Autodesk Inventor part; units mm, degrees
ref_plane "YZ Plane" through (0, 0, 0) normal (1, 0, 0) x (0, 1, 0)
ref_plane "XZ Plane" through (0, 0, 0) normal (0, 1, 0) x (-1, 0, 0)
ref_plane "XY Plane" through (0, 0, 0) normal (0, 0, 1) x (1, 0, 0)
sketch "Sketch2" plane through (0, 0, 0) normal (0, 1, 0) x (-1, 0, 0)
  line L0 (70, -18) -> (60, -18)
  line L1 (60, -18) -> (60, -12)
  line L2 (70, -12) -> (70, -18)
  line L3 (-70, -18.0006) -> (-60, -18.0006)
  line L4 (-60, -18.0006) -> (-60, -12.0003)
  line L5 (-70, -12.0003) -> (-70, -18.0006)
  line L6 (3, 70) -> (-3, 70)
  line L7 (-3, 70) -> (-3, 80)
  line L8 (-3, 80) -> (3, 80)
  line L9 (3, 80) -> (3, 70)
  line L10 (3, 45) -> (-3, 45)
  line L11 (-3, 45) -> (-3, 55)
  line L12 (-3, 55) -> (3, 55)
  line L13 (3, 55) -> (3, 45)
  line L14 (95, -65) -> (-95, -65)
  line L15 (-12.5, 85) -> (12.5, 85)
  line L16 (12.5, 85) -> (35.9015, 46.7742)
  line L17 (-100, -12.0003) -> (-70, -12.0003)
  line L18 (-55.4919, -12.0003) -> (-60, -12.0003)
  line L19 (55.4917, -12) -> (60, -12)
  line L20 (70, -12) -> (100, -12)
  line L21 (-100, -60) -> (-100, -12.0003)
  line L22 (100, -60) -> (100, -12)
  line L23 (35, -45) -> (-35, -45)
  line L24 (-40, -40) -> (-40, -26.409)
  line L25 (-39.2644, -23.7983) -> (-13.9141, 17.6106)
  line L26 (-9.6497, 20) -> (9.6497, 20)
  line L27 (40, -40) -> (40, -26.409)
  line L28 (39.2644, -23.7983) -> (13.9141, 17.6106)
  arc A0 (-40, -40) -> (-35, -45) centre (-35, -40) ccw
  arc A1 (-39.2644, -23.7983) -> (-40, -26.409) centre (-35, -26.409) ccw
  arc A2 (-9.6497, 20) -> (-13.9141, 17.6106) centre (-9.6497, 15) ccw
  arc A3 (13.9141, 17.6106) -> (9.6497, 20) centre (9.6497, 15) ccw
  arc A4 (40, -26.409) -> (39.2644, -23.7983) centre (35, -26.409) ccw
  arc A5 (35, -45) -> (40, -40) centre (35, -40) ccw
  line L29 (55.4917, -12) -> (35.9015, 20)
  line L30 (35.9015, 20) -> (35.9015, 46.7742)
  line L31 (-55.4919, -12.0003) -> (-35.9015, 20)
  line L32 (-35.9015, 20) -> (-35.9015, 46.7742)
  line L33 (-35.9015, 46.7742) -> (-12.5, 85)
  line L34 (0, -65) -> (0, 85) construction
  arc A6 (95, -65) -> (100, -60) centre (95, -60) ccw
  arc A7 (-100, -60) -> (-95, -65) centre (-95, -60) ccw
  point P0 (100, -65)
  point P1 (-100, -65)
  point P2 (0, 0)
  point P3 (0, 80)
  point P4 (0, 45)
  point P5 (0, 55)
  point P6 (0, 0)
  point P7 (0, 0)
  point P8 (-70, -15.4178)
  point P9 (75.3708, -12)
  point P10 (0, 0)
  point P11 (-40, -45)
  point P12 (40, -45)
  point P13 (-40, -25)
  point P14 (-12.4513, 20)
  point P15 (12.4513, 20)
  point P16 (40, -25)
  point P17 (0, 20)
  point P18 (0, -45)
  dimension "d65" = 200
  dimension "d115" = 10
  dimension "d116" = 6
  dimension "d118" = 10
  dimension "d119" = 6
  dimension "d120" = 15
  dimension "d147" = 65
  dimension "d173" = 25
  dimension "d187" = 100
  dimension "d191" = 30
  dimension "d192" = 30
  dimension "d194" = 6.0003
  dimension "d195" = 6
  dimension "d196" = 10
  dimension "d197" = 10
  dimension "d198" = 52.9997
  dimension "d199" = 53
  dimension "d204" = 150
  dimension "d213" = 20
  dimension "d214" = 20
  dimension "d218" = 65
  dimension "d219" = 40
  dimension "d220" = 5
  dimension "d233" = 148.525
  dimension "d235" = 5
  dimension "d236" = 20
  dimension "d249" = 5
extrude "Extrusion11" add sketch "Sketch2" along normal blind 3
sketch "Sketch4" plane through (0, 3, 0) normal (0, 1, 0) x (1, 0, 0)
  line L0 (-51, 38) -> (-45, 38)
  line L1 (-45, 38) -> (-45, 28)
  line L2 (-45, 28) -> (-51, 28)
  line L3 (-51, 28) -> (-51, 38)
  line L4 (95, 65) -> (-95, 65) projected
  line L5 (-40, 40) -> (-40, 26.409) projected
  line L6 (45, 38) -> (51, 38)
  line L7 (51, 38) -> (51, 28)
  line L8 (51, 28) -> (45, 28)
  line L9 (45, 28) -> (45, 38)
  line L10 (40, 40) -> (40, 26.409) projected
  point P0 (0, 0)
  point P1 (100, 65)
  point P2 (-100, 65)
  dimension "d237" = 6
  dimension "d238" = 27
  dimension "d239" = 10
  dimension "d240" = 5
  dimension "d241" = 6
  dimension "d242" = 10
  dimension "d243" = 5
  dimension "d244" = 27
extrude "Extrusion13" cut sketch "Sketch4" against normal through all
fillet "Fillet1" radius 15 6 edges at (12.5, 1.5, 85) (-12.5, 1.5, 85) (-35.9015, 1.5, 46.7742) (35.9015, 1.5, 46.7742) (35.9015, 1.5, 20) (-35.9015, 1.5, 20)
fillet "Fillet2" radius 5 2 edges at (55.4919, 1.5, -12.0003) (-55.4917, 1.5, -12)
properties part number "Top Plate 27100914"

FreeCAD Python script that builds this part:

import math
import FreeCAD as App
import Part
import Sketcher

V = App.Vector


def edges_at(feature, points):
    """Names of the edges that pass closest to the given points."""
    edges = feature.Shape.Edges
    near = lambda p: min(range(len(edges)), key=lambda i: edges[i].distToShape(Part.Vertex(*p))[0])
    return sorted({f"Edge{near(p) + 1}" for p in points})


def add_polygon(sketch, points):
    """Adds a closed chain of lines whose ends are joined by coincident constraints."""
    first, n = sketch.GeometryCount, len(points)
    for a, b in zip(points, points[1:] + points[:1]):
        sketch.addGeometry(Part.LineSegment(App.Vector(*a, 0), App.Vector(*b, 0)), False)
    for i in range(n):
        sketch.addConstraint(Sketcher.Constraint("Coincident", first + i, 2, first + (i + 1) % n, 1))

doc = App.newDocument("Part")
body = doc.addObject("PartDesign::Body", "Body")

# Sketch on XZ plane
sketch1 = body.newObject("Sketcher::SketchObject", "Sketch")
sketch1.AttachmentSupport = (doc.getObject("XZ_Plane"), [""])
sketch1.MapMode = "FlatFace"
sketch1.addGeometry(Part.LineSegment(V(-70, -12, 0), V(-70, -18, 0)), False)  # 0
sketch1.addGeometry(Part.LineSegment(V(-70, -18, 0), V(-60, -18, 0)), False)  # 1
sketch1.addGeometry(Part.LineSegment(V(-60, -18, 0), V(-60, -12, 0)), False)  # 2
sketch1.addGeometry(Part.LineSegment(V(-60, -12, 0), V(-55.4917, -12, 0)), False)  # 3
sketch1.addGeometry(Part.LineSegment(V(-55.4917, -12, 0), V(-35.9015, 20, 0)), False)  # 4
sketch1.addGeometry(Part.LineSegment(V(-35.9015, 20, 0), V(-35.9015, 46.7742, 0)), False)  # 5
sketch1.addGeometry(Part.LineSegment(V(-35.9015, 46.7742, 0), V(-12.5, 85, 0)), False)  # 6
sketch1.addGeometry(Part.LineSegment(V(-12.5, 85, 0), V(12.5, 85, 0)), False)  # 7
sketch1.addGeometry(Part.LineSegment(V(12.5, 85, 0), V(35.9015, 46.7742, 0)), False)  # 8
sketch1.addGeometry(Part.LineSegment(V(35.9015, 46.7742, 0), V(35.9015, 20, 0)), False)  # 9
sketch1.addGeometry(Part.LineSegment(V(35.9015, 20, 0), V(55.4919, -12.0003, 0)), False)  # 10
sketch1.addGeometry(Part.LineSegment(V(55.4919, -12.0003, 0), V(60, -12.0003, 0)), False)  # 11
sketch1.addGeometry(Part.LineSegment(V(60, -12.0003, 0), V(60, -18.0006, 0)), False)  # 12
sketch1.addGeometry(Part.LineSegment(V(60, -18.0006, 0), V(70, -18.0006, 0)), False)  # 13
sketch1.addGeometry(Part.LineSegment(V(70, -18.0006, 0), V(70, -12.0003, 0)), False)  # 14
sketch1.addGeometry(Part.LineSegment(V(70, -12.0003, 0), V(100, -12.0003, 0)), False)  # 15
sketch1.addGeometry(Part.LineSegment(V(100, -12.0003, 0), V(100, -60, 0)), False)  # 16
sketch1.addGeometry(Part.ArcOfCircle(Part.Circle(V(95, -60, 0), V(0, 0, 1), 5), math.radians(-90), math.radians(0)), False)  # 17
sketch1.addGeometry(Part.LineSegment(V(95, -65, 0), V(-95, -65, 0)), False)  # 18
sketch1.addGeometry(Part.ArcOfCircle(Part.Circle(V(-95, -60, 0), V(0, 0, 1), 5), math.radians(180), math.radians(270)), False)  # 19
sketch1.addGeometry(Part.LineSegment(V(-100, -60, 0), V(-100, -12, 0)), False)  # 20
sketch1.addGeometry(Part.LineSegment(V(-100, -12, 0), V(-70, -12, 0)), False)  # 21
sketch1.addGeometry(Part.ArcOfCircle(Part.Circle(V(-35, -40, 0), V(0, 0, 1), 5), math.radians(180), math.radians(270)), False)  # 22
sketch1.addGeometry(Part.LineSegment(V(-35, -45, 0), V(35, -45, 0)), False)  # 23
sketch1.addGeometry(Part.ArcOfCircle(Part.Circle(V(35, -40, 0), V(0, 0, 1), 5), math.radians(-90), math.radians(0)), False)  # 24
sketch1.addGeometry(Part.LineSegment(V(40, -40, 0), V(40, -26.409, 0)), False)  # 25
sketch1.addGeometry(Part.ArcOfCircle(Part.Circle(V(35.001063, -26.408535, 0), V(0, 0, 1), 4.998937), math.radians(-0.005325), math.radians(31.477124)), False)  # 26
sketch1.addGeometry(Part.LineSegment(V(39.2644, -23.7983, 0), V(13.9141, 17.6106, 0)), False)  # 27
sketch1.addGeometry(Part.ArcOfCircle(Part.Circle(V(9.6497, 15, 0), V(0, 0, 1), 5), math.radians(31.474326), math.radians(90)), False)  # 28
sketch1.addGeometry(Part.LineSegment(V(9.6497, 20, 0), V(-9.6497, 20, 0)), False)  # 29
sketch1.addGeometry(Part.ArcOfCircle(Part.Circle(V(-9.6497, 15, 0), V(0, 0, 1), 5.000034), math.radians(90), math.radians(148.525674)), False)  # 30
sketch1.addGeometry(Part.LineSegment(V(-13.9141, 17.6106, 0), V(-39.2644, -23.7983, 0)), False)  # 31
sketch1.addGeometry(Part.ArcOfCircle(Part.Circle(V(-34.99885, -26.409159, 0), V(0, 0, 1), 5.00115), math.radians(148.530022), math.radians(179.998179)), False)  # 32
sketch1.addGeometry(Part.LineSegment(V(-40, -26.409, 0), V(-40, -40, 0)), False)  # 33
add_polygon(sketch1, [(-3, 55), (-3, 45), (3, 45), (3, 55)])  # lines 34-37
add_polygon(sketch1, [(-3, 80), (-3, 70), (3, 70), (3, 80)])  # lines 38-41
sketch1.addConstraint(Sketcher.Constraint("Coincident", 0, 2, 1, 1))
sketch1.addConstraint(Sketcher.Constraint("Coincident", 1, 2, 2, 1))
sketch1.addConstraint(Sketcher.Constraint("Coincident", 2, 2, 3, 1))
sketch1.addConstraint(Sketcher.Constraint("Coincident", 3, 2, 4, 1))
sketch1.addConstraint(Sketcher.Constraint("Coincident", 4, 2, 5, 1))
sketch1.addConstraint(Sketcher.Constraint("Coincident", 5, 2, 6, 1))
sketch1.addConstraint(Sketcher.Constraint("Coincident", 6, 2, 7, 1))
sketch1.addConstraint(Sketcher.Constraint("Coincident", 7, 2, 8, 1))
sketch1.addConstraint(Sketcher.Constraint("Coincident", 8, 2, 9, 1))
sketch1.addConstraint(Sketcher.Constraint("Coincident", 9, 2, 10, 1))
sketch1.addConstraint(Sketcher.Constraint("Coincident", 10, 2, 11, 1))
sketch1.addConstraint(Sketcher.Constraint("Coincident", 11, 2, 12, 1))
sketch1.addConstraint(Sketcher.Constraint("Coincident", 12, 2, 13, 1))
sketch1.addConstraint(Sketcher.Constraint("Coincident", 13, 2, 14, 1))
sketch1.addConstraint(Sketcher.Constraint("Coincident", 14, 2, 15, 1))
sketch1.addConstraint(Sketcher.Constraint("Coincident", 15, 2, 16, 1))
sketch1.addConstraint(Sketcher.Constraint("Coincident", 16, 2, 17, 2))
sketch1.addConstraint(Sketcher.Constraint("Coincident", 17, 1, 18, 1))
sketch1.addConstraint(Sketcher.Constraint("Coincident", 18, 2, 19, 2))
sketch1.addConstraint(Sketcher.Constraint("Coincident", 19, 1, 20, 1))
sketch1.addConstraint(Sketcher.Constraint("Coincident", 20, 2, 21, 1))
sketch1.addConstraint(Sketcher.Constraint("Coincident", 21, 2, 0, 1))
sketch1.addConstraint(Sketcher.Constraint("Coincident", 22, 2, 23, 1))
sketch1.addConstraint(Sketcher.Constraint("Coincident", 23, 2, 24, 1))
sketch1.addConstraint(Sketcher.Constraint("Coincident", 24, 2, 25, 1))
sketch1.addConstraint(Sketcher.Constraint("Coincident", 25, 2, 26, 1))
sketch1.addConstraint(Sketcher.Constraint("Coincident", 26, 2, 27, 1))
sketch1.addConstraint(Sketcher.Constraint("Coincident", 27, 2, 28, 1))
sketch1.addConstraint(Sketcher.Constraint("Coincident", 28, 2, 29, 1))
sketch1.addConstraint(Sketcher.Constraint("Coincident", 29, 2, 30, 1))
sketch1.addConstraint(Sketcher.Constraint("Coincident", 30, 2, 31, 1))
sketch1.addConstraint(Sketcher.Constraint("Coincident", 31, 2, 32, 1))
sketch1.addConstraint(Sketcher.Constraint("Coincident", 32, 2, 33, 1))
sketch1.addConstraint(Sketcher.Constraint("Coincident", 33, 2, 22, 1))
sketch1.addConstraint(Sketcher.Constraint("Vertical", 0))
sketch1.addConstraint(Sketcher.Constraint("Horizontal", 1))
sketch1.addConstraint(Sketcher.Constraint("Vertical", 2))
sketch1.addConstraint(Sketcher.Constraint("Horizontal", 3))
sketch1.addConstraint(Sketcher.Constraint("Vertical", 5))
sketch1.addConstraint(Sketcher.Constraint("Horizontal", 7))
sketch1.addConstraint(Sketcher.Constraint("Vertical", 9))
sketch1.addConstraint(Sketcher.Constraint("Horizontal", 11))
sketch1.addConstraint(Sketcher.Constraint("Vertical", 12))
sketch1.addConstraint(Sketcher.Constraint("Horizontal", 13))
sketch1.addConstraint(Sketcher.Constraint("Vertical", 14))
sketch1.addConstraint(Sketcher.Constraint("Horizontal", 15))
sketch1.addConstraint(Sketcher.Constraint("Vertical", 16))
sketch1.addConstraint(Sketcher.Constraint("Horizontal", 18))
sketch1.addConstraint(Sketcher.Constraint("Vertical", 20))
sketch1.addConstraint(Sketcher.Constraint("Horizontal", 21))
sketch1.addConstraint(Sketcher.Constraint("Horizontal", 23))
sketch1.addConstraint(Sketcher.Constraint("Vertical", 25))
sketch1.addConstraint(Sketcher.Constraint("Horizontal", 29))
sketch1.addConstraint(Sketcher.Constraint("Vertical", 33))
sketch1.addConstraint(Sketcher.Constraint("Vertical", 34))
sketch1.addConstraint(Sketcher.Constraint("Horizontal", 35))
sketch1.addConstraint(Sketcher.Constraint("Vertical", 36))
sketch1.addConstraint(Sketcher.Constraint("Horizontal", 37))
sketch1.addConstraint(Sketcher.Constraint("Vertical", 38))
sketch1.addConstraint(Sketcher.Constraint("Horizontal", 39))
sketch1.addConstraint(Sketcher.Constraint("Vertical", 40))
sketch1.addConstraint(Sketcher.Constraint("Horizontal", 41))
sketch1.addConstraint(Sketcher.Constraint("Radius", 17, 5.0))
sketch1.addConstraint(Sketcher.Constraint("Radius", 19, 5.0))
sketch1.addConstraint(Sketcher.Constraint("Radius", 22, 5.0))
sketch1.addConstraint(Sketcher.Constraint("Radius", 24, 5.0))
sketch1.addConstraint(Sketcher.Constraint("Radius", 28, 5.0))
sketch1.addConstraint(Sketcher.Constraint("Radius", 30, 5.0))
sketch1.addConstraint(Sketcher.Constraint("DistanceX", 1, 1, 1, 2, 10.0))
sketch1.addConstraint(Sketcher.Constraint("DistanceX", 7, 1, 7, 2, 25.0))
sketch1.addConstraint(Sketcher.Constraint("DistanceX", 13, 1, 13, 2, 10.0))
sketch1.addConstraint(Sketcher.Constraint("DistanceX", 15, 1, 15, 2, 30.0))
sketch1.addConstraint(Sketcher.Constraint("DistanceX", 21, 1, 21, 2, 30.0))
sketch1.addConstraint(Sketcher.Constraint("DistanceX", 35, 1, 35, 2, 6.0))
sketch1.addConstraint(Sketcher.Constraint("DistanceX", 39, 1, 39, 2, 6.0))
sketch1.addConstraint(Sketcher.Constraint("DistanceY", 0, 2, 0, 1, 6.0))
sketch1.addConstraint(Sketcher.Constraint("DistanceY", 2, 1, 2, 2, 6.0))
sketch1.addConstraint(Sketcher.Constraint("DistanceY", 34, 2, 34, 1, 10.0))
sketch1.addConstraint(Sketcher.Constraint("DistanceY", 38, 2, 38, 1, 10.0))
sketch1.addConstraint(Sketcher.Constraint("DistanceY", 22, 3, -1, 1, 40.0))
sketch1.addConstraint(Sketcher.Constraint("DistanceY", -1, 1, 28, 3, 15.0))
sketch1.addConstraint(Sketcher.Constraint("DistanceY", -1, 1, 4, 2, 20.0))
sketch1.addConstraint(Sketcher.Constraint("DistanceY", -1, 1, 9, 2, 20.0))
sketch1.addConstraint(Sketcher.Constraint("DistanceX", -1, 1, 15, 2, 100.0))
sketch1.addConstraint(Sketcher.Constraint("DistanceY", 17, 1, -1, 1, 65.0))
sketch1.addConstraint(Sketcher.Constraint("DistanceX", 19, 1, -1, 1, 100.0))
sketch1.addConstraint(Sketcher.Constraint("DistanceX", -1, 1, 24, 2, 40.0))
sketch1.addConstraint(Sketcher.Constraint("DistanceY", 24, 2, -1, 1, 40.0))
sketch1.addConstraint(Sketcher.Constraint("DistanceX", 32, 2, -1, 1, 40.0))
sketch1.addConstraint(Sketcher.Constraint("DistanceY", 33, 2, -1, 1, 40.0))
sketch1.addConstraint(Sketcher.Constraint("DistanceY", 4, 2, 6, 2, 65.0))
sketch1.addConstraint(Sketcher.Constraint("DistanceX", 17, 1, 16, 2, 5.0))
sketch1.addConstraint(Sketcher.Constraint("DistanceY", 17, 1, 16, 2, 5.0))
sketch1.addConstraint(Sketcher.Constraint("DistanceX", 18, 2, 0, 2, 25.0))
sketch1.addConstraint(Sketcher.Constraint("DistanceY", 18, 2, 2, 2, 53.0))
sketch1.addConstraint(Sketcher.Constraint("DistanceY", 18, 2, 19, 1, 5.0))
sketch1.addConstraint(Sketcher.Constraint("DistanceX", 1, 2, 22, 2, 25.0))
sketch1.addConstraint(Sketcher.Constraint("DistanceX", 23, 2, 12, 2, 25.0))
sketch1.addConstraint(Sketcher.Constraint("DistanceY", 29, 2, 34, 2, 25.0))
sketch1.addConstraint(Sketcher.Constraint("DistanceY", 37, 2, 38, 2, 15.0))
sketch1.addConstraint(Sketcher.Constraint("DistanceX", 38, 2, 36, 2, 6.0))
sketch1.addConstraint(Sketcher.Constraint("DistanceY", 12, 2, 12, 1, 6.0003))
sketch1.addConstraint(Sketcher.Constraint("DistanceY", 14, 1, 14, 2, 6.0003))
sketch1.addConstraint(Sketcher.Constraint("DistanceX", 34, 2, -1, 1, 3.0))
sketch1.addConstraint(Sketcher.Constraint("Radius", 26, 4.999))
sketch1.addConstraint(Sketcher.Constraint("DistanceX", 32, 3, 26, 3, 70.0))
sketch1.addConstraint(Sketcher.Constraint("DistanceX", 6, 2, -1, 1, 12.5))
sketch1.addConstraint(Sketcher.Constraint("DistanceY", 17, 1, 15, 2, 52.9997))
sketch1.addConstraint(Sketcher.Constraint("Distance", 6, 44.82))
sketch1.addConstraint(Sketcher.Constraint("Distance", 8, 44.82))
sketch1.addConstraint(Sketcher.Constraint("DistanceX", 11, 1, 11, 2, 4.508))
sketch1.addConstraint(Sketcher.Constraint("DistanceY", 25, 1, 25, 2, 13.591))
sketch1.addConstraint(Sketcher.Constraint("DistanceY", 33, 2, 33, 1, 13.591))
sketch1.addConstraint(Sketcher.Constraint("DistanceX", 3, 1, 3, 2, 4.5083))
sketch1.addConstraint(Sketcher.Constraint("DistanceX", 29, 2, 29, 1, 19.2994))
sketch1.addConstraint(Sketcher.Constraint("DistanceY", 5, 1, 5, 2, 26.7742))
sketch1.addConstraint(Sketcher.Constraint("DistanceY", 9, 2, 9, 1, 26.7742))
sketch1.addConstraint(Sketcher.Constraint("DistanceX", -1, 1, 27, 2, 13.914))
sketch1.addConstraint(Sketcher.Constraint("DistanceX", 30, 2, -1, 1, 13.914))
sketch1.addConstraint(Sketcher.Constraint("DistanceY", 26, 3, 12, 2, 8.408))
sketch1.addConstraint(Sketcher.Constraint("DistanceY", 26, 2, 10, 2, 11.798))
sketch1.addConstraint(Sketcher.Constraint("DistanceY", 26, 2, 27, 2, 41.409))
sketch1.addConstraint(Sketcher.Constraint("Distance", 31, 48.5524))
sketch1.addConstraint(Sketcher.Constraint("DistanceX", 30, 3, -1, 1, 9.6497))
sketch1.addConstraint(Sketcher.Constraint("DistanceY", 32, 3, -1, 1, 26.4092))
sketch1.addConstraint(Sketcher.Constraint("DistanceX", -1, 1, 28, 2, 9.6497))
pad1 = body.newObject("PartDesign::Pad", "Pad")
pad1.Profile = sketch1
pad1.Length = 3
pad1.Reversed = True

# Sketch on XZ plane
sketch2 = body.newObject("Sketcher::SketchObject", "Sketch001")
sketch2.AttachmentSupport = (doc.getObject("XZ_Plane"), [""])
sketch2.MapMode = "FlatFace"
sketch2.AttachmentOffset = App.Placement(V(0, 0, -3), App.Rotation())
add_polygon(sketch2, [(-45, -38), (-51, -38), (-51, -28), (-45, -28)])  # lines 0-3
add_polygon(sketch2, [(51, -38), (45, -38), (45, -28), (51, -28)])  # lines 4-7
sketch2.addConstraint(Sketcher.Constraint("Horizontal", 0))
sketch2.addConstraint(Sketcher.Constraint("Vertical", 1))
sketch2.addConstraint(Sketcher.Constraint("Horizontal", 2))
sketch2.addConstraint(Sketcher.Constraint("Vertical", 3))
sketch2.addConstraint(Sketcher.Constraint("Horizontal", 4))
sketch2.addConstraint(Sketcher.Constraint("Vertical", 5))
sketch2.addConstraint(Sketcher.Constraint("Horizontal", 6))
sketch2.addConstraint(Sketcher.Constraint("Vertical", 7))
sketch2.addConstraint(Sketcher.Constraint("Symmetric", 3, 2, 4, 2, -2))
sketch2.addConstraint(Sketcher.Constraint("Symmetric", 1, 2, 6, 2, -2))
sketch2.addConstraint(Sketcher.Constraint("DistanceX", 0, 2, 0, 1, 6.0))
sketch2.addConstraint(Sketcher.Constraint("DistanceY", 1, 1, 1, 2, 10.0))
sketch2.addConstraint(Sketcher.Constraint("DistanceX", 0, 2, -1, 1, 51.0))
sketch2.addConstraint(Sketcher.Constraint("DistanceY", 0, 2, -1, 1, 38.0))
pocket1 = body.newObject("PartDesign::Pocket", "Pocket")
pocket1.Profile = sketch2
pocket1.Type = "ThroughAll"
pocket1.Reversed = True
doc.recompute()

fillet = body.newObject("PartDesign::Fillet", "Fillet")
fillet.Base = (pocket1, edges_at(pocket1, [
    (12.5, 1.5, 85),
    (-12.5, 1.5, 85),
    (-35.901, 1.5, 46.774),
    (35.901, 1.5, 46.774),
    (35.901, 1.5, 20),
    (-35.901, 1.5, 20),
]))
fillet.Radius = 15
doc.recompute()

fillet2 = body.newObject("PartDesign::Fillet", "Fillet001")
fillet2.Base = (fillet, edges_at(fillet, [(55.492, 1.5, -12), (-55.492, 1.5, -12)]))
fillet2.Radius = 5

doc.recompute()
